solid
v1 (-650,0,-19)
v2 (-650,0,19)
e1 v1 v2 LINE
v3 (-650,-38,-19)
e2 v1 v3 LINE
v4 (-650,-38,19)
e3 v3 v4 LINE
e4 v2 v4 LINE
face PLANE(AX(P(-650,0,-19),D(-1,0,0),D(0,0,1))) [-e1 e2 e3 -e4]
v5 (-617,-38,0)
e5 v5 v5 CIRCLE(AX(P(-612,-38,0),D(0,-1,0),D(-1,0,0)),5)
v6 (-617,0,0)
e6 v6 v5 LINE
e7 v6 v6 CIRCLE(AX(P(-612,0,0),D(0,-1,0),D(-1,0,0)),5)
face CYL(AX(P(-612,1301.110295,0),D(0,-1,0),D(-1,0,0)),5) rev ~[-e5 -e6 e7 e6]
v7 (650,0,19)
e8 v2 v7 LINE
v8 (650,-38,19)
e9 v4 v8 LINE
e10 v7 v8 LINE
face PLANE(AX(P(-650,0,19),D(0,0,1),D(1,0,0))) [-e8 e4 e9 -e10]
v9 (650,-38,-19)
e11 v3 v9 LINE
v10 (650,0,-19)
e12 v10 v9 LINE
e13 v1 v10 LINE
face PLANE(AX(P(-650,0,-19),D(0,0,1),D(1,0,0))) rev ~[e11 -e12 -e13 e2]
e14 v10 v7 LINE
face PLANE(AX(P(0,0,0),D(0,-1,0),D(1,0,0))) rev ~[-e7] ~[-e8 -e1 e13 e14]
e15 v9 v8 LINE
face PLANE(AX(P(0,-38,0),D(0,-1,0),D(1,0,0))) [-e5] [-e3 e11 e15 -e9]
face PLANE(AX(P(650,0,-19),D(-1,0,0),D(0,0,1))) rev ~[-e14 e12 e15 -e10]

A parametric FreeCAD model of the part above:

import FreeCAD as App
import Part
import Sketcher
from FreeCAD import Vector
Q = App.Units.Quantity

doc = App.newDocument("Part")
params = doc.addObject("Spreadsheet::Sheet", "Params")
for row, (alias, value) in enumerate([
    ("sketch1_width", "1300 mm"),
    ("sketch1_height", "38 mm"),
    ("pad1_length", "38 mm"),
    ("sketch2_diameter", "10 mm"),
    ("hole_diameter", "10 mm"),
], start=1):
    params.set(f"A{row}", alias)
    params.set(f"B{row}", "=" + value)
    params.setAlias(f"B{row}", alias)

body = doc.addObject("PartDesign::Body", "Body")

sketch1 = body.newObject("Sketcher::SketchObject", "Sketch")
sketch1.AttachmentSupport = (doc.getObject("XZ_Plane"), [""])
sketch1.MapMode = "FlatFace"
sketch1.addGeometry(Part.LineSegment(Vector(-650, 19, 0), Vector(-650, -19, 0)), False)
sketch1.addGeometry(Part.LineSegment(Vector(-650, -19, 0), Vector(650, -19, 0)), False)
sketch1.addGeometry(Part.LineSegment(Vector(650, -19, 0), Vector(650, 19, 0)), False)
sketch1.addGeometry(Part.LineSegment(Vector(650, 19, 0), Vector(-650, 19, 0)), False)
sketch1.addConstraint(Sketcher.Constraint("Coincident", 0, 2, 1, 1))
sketch1.addConstraint(Sketcher.Constraint("Coincident", 1, 2, 2, 1))
sketch1.addConstraint(Sketcher.Constraint("Coincident", 2, 2, 3, 1))
sketch1.addConstraint(Sketcher.Constraint("Coincident", 3, 2, 0, 1))
sketch1.addConstraint(Sketcher.Constraint("Vertical", 0))
sketch1.addConstraint(Sketcher.Constraint("Horizontal", 1))
sketch1.addConstraint(Sketcher.Constraint("Vertical", 2))
sketch1.addConstraint(Sketcher.Constraint("Horizontal", 3))
sketch1.addConstraint(Sketcher.Constraint("Symmetric", 0, 2, 2, 2, -1, 1))
sketch1.addConstraint(Sketcher.Constraint("DistanceX", 1, 1, 1, 2, Q("1300 mm")))
sketch1.addConstraint(Sketcher.Constraint("DistanceY", 0, 2, 0, 1, Q("38 mm")))
sketch1.setExpression("Constraints[9]", "Params.sketch1_width")
sketch1.setExpression("Constraints[10]", "Params.sketch1_height")
pad1 = body.newObject("PartDesign::Pad", "Pad")
pad1.Profile = sketch1
pad1.setExpression("Length", "Params.pad1_length")

sketch2 = body.newObject("Sketcher::SketchObject", "Sketch001")
sketch2.AttachmentSupport = (doc.getObject("XZ_Plane"), [""])
sketch2.MapMode = "FlatFace"
sketch2.addGeometry(Part.Circle(Vector(-612, 0, 0), Vector(0, 0, 1), 5), False)
sketch2.addConstraint(Sketcher.Constraint("PointOnObject", 0, 3, -1))
sketch2.addConstraint(Sketcher.Constraint("Diameter", 0, Q("10 mm")))
sketch2.addConstraint(Sketcher.Constraint("DistanceX", 0, 3, -1, 1, Q("612 mm")))
sketch2.setExpression("Constraints[1]", "Params.sketch2_diameter")
doc.recompute()
hole = body.newObject("PartDesign::Hole", "Hole")
hole.Profile = sketch2
hole.ThreadType = "None"
hole.setExpression("Diameter", "Params.hole_diameter")
hole.DepthType = "ThroughAll"
hole.Reversed = True

doc.recompute()
